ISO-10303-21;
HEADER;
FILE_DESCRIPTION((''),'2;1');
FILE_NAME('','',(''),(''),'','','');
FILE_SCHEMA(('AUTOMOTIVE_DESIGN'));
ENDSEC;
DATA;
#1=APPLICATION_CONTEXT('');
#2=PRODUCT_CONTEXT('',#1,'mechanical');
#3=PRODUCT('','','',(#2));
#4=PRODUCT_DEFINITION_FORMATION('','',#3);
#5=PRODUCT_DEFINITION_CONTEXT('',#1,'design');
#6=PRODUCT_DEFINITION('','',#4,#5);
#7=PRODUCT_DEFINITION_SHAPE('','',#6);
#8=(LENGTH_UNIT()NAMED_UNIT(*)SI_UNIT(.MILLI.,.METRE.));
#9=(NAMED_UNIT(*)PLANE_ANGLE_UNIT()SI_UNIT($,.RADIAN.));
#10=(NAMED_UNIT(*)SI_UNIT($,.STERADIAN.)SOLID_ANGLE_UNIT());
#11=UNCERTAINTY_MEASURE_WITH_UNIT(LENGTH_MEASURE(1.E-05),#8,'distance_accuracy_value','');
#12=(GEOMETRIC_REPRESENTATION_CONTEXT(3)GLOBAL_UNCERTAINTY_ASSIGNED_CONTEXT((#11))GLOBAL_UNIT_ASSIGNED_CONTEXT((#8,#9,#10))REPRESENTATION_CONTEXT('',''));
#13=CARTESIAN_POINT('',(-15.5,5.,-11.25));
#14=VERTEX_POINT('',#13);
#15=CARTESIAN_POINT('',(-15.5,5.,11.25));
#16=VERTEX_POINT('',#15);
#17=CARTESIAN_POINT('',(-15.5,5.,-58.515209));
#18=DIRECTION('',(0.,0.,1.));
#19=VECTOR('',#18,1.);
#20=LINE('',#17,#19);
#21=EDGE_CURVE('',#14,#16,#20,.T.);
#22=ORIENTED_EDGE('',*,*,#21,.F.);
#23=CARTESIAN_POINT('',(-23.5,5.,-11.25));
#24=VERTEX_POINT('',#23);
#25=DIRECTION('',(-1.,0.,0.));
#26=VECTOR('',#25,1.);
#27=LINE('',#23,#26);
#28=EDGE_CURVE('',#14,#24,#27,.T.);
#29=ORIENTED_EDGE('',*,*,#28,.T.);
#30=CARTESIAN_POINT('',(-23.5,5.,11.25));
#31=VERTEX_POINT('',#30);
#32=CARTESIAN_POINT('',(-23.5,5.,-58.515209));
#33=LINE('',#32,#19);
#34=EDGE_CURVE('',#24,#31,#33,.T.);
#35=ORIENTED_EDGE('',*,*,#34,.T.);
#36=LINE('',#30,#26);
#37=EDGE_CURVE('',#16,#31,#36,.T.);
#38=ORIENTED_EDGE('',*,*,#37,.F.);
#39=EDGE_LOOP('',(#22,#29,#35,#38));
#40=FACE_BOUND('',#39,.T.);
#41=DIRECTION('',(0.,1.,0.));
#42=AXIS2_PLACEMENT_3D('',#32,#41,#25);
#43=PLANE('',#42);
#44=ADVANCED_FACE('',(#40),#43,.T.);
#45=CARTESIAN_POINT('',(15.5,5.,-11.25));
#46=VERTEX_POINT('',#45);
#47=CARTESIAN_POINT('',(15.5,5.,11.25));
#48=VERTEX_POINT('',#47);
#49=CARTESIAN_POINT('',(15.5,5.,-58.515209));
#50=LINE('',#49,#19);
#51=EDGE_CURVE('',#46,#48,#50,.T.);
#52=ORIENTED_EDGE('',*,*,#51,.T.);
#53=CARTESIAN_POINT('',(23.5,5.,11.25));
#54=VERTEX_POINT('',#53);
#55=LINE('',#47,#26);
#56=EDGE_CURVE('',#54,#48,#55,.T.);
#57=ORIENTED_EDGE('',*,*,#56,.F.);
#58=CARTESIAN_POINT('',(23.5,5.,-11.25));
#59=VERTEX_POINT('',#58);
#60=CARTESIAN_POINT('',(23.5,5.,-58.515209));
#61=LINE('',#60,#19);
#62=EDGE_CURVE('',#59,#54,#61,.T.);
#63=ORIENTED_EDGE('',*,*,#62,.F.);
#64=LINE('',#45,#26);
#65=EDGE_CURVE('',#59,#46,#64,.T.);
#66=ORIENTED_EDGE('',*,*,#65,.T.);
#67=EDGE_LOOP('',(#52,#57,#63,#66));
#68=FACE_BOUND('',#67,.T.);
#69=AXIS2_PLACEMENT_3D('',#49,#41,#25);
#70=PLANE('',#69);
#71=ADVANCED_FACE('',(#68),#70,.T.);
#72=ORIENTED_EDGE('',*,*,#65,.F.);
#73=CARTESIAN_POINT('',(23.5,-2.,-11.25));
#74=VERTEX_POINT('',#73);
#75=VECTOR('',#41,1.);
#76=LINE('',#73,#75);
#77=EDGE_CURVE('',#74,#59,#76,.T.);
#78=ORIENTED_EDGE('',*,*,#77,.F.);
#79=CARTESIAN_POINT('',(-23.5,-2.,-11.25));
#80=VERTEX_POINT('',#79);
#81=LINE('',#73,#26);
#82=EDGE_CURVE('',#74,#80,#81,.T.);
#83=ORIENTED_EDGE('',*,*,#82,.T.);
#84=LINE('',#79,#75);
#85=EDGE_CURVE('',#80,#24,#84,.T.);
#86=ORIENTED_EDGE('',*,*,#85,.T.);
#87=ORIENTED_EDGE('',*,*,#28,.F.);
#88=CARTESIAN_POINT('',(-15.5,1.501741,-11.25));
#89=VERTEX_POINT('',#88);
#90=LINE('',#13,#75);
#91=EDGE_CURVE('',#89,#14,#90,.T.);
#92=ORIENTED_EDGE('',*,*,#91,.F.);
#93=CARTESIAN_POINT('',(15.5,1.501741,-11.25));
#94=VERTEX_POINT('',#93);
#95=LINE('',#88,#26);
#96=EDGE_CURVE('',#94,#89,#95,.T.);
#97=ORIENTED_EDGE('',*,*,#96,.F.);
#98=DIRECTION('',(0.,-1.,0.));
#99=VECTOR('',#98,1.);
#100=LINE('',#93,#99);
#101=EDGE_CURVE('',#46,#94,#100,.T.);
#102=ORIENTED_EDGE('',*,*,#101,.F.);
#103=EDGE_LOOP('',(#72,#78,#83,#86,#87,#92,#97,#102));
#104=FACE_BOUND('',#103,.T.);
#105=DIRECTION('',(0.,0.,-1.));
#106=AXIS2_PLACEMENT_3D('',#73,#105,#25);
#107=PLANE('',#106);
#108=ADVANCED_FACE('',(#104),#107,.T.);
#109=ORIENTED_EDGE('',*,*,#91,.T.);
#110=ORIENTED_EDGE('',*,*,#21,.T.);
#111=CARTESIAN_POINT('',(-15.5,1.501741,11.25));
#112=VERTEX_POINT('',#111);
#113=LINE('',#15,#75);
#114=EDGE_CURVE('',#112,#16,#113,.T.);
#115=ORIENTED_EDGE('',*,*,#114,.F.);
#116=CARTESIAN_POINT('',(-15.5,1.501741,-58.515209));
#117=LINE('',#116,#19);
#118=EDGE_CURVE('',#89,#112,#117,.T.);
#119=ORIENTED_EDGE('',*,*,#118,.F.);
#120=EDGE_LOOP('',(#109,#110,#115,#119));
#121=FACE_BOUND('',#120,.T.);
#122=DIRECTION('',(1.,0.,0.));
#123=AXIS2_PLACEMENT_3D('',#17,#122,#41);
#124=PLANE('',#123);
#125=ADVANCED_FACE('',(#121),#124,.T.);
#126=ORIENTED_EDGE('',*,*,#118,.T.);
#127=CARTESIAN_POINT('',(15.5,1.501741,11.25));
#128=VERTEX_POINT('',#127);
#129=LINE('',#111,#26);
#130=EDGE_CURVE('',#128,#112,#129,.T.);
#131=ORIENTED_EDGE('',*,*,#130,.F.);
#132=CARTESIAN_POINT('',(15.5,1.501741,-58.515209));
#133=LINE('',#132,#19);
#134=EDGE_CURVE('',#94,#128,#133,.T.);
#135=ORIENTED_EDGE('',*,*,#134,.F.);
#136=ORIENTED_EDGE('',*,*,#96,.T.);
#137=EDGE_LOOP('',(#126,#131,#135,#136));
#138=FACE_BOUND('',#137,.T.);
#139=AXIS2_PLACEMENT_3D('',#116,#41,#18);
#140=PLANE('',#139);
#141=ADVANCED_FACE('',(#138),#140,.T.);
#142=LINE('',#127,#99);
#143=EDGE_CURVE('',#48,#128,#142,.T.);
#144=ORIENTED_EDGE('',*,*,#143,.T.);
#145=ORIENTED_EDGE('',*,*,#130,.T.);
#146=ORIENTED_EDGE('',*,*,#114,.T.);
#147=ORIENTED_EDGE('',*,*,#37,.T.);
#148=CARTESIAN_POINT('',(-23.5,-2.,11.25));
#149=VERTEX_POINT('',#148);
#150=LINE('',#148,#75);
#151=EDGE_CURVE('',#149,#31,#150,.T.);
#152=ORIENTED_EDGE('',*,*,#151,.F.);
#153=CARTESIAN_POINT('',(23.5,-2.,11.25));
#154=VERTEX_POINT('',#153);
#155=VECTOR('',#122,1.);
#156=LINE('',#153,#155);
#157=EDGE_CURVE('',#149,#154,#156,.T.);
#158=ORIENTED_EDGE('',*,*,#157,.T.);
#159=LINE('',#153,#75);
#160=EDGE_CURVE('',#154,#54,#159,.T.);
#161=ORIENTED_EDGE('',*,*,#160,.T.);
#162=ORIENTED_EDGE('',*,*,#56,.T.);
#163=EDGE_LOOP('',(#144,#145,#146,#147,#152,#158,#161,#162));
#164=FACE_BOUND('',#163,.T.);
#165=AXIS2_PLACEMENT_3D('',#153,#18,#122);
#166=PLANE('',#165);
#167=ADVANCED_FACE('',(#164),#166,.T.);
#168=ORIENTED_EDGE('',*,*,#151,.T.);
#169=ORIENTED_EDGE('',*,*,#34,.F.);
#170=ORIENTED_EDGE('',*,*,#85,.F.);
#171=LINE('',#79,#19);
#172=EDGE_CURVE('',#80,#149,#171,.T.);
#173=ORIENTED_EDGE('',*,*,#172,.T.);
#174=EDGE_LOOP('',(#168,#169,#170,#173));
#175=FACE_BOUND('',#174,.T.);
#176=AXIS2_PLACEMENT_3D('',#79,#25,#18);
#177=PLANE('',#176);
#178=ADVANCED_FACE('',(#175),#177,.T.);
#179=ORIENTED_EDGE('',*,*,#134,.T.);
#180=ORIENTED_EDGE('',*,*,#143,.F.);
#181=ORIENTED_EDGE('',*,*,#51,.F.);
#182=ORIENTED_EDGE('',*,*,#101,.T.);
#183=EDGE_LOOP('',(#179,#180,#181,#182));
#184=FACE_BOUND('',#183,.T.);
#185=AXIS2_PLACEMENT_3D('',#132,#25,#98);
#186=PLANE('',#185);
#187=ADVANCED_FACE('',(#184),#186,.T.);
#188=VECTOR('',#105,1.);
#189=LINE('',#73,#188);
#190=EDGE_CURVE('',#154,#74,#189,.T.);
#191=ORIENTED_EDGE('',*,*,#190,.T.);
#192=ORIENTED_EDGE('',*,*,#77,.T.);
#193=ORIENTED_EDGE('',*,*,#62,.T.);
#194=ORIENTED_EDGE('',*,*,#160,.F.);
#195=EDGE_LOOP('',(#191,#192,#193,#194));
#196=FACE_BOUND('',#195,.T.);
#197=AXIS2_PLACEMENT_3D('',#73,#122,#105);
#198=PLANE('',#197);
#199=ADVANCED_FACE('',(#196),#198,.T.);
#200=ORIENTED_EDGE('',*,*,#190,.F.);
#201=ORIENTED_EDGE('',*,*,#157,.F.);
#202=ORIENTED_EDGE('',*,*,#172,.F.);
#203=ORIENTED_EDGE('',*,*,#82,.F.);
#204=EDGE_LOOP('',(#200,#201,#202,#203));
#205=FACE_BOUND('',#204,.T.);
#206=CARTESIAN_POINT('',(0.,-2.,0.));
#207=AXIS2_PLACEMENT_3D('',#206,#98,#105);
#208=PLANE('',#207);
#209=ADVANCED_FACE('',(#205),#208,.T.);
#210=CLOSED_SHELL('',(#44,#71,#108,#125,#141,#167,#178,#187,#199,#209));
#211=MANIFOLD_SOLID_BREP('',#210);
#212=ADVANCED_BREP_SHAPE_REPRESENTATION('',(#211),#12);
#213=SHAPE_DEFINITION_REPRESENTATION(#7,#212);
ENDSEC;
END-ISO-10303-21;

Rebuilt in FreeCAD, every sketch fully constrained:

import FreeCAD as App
import Part
import Sketcher

V = App.Vector


def add_polygon(sketch, points):
    """Adds a closed chain of lines whose ends are joined by coincident constraints."""
    first, n = sketch.GeometryCount, len(points)
    for a, b in zip(points, points[1:] + points[:1]):
        sketch.addGeometry(Part.LineSegment(App.Vector(*a, 0), App.Vector(*b, 0)), False)
    for i in range(n):
        sketch.addConstraint(Sketcher.Constraint("Coincident", first + i, 2, first + (i + 1) % n, 1))

doc = App.newDocument("Part")
params = doc.addObject("Spreadsheet::Sheet", "Params")
for row, (alias, value) in enumerate([
    ("sketch1_width", "47 mm"),
    ("sketch1_height", "22.5 mm"),
    ("pad1_length", "2 mm"),
    ("sketch2_width", "47 mm"),
    ("sketch2_width2", "8 mm"),
    ("sketch2_height", "5 mm"),
    ("pad2_length", "22.5 mm"),
], start=1):
    params.set(f"A{row}", alias)
    params.set(f"B{row}", "=" + value)
    params.setAlias(f"B{row}", alias)

body = doc.addObject("PartDesign::Body", "Body")

# Sketch on XZ plane
sketch1 = body.newObject("Sketcher::SketchObject", "Sketch")
sketch1.AttachmentSupport = (doc.getObject("XZ_Plane"), [""])
sketch1.MapMode = "FlatFace"
add_polygon(sketch1, [(-24, -11), (-24, 11), (24, 11), (24, -11)])  # lines 0-3
sketch1.addConstraint([
    Sketcher.Constraint("Vertical", 0),
    Sketcher.Constraint("Horizontal", 1),
    Sketcher.Constraint("Vertical", 2),
    Sketcher.Constraint("Horizontal", 3),
    Sketcher.Constraint("Symmetric", 0, 2, 2, 2, -1, 1),
    Sketcher.Constraint("DistanceX", 1, 1, 1, 2, 47.0),
    Sketcher.Constraint("DistanceY", 0, 1, 0, 2, 22.5),
])
sketch1.setExpression("Constraints[9]", "Params.sketch1_width")
sketch1.setExpression("Constraints[10]", "Params.sketch1_height")
pad1 = body.newObject("PartDesign::Pad", "Pad")
pad1.Profile = sketch1
pad1.setExpression("Length", "Params.pad1_length")

# Sketch on XY plane
sketch2 = body.newObject("Sketcher::SketchObject", "Sketch001")
sketch2.AttachmentSupport = (doc.getObject("XY_Plane"), [""])
sketch2.MapMode = "FlatFace"
sketch2.AttachmentOffset = App.Placement(V(0, 0, 11.25), App.Rotation())
add_polygon(sketch2, [(-23.5, 0), (23.5, 0), (23.5, 5), (15.5, 5), (15.5, 1.5), (-15.5, 1.5), (-15.5, 5), (-23.5, 5)])  # lines 0-7
sketch2.addConstraint([
    Sketcher.Constraint("Horizontal", 0),
    Sketcher.Constraint("Vertical", 1),
    Sketcher.Constraint("Horizontal", 2),
    Sketcher.Constraint("Vertical", 3),
    Sketcher.Constraint("Horizontal", 4),
    Sketcher.Constraint("Vertical", 5),
    Sketcher.Constraint("Horizontal", 6),
    Sketcher.Constraint("Vertical", 7),
    Sketcher.Constraint("Symmetric", 0, 2, 7, 2, -1, 1),
    Sketcher.Constraint("Symmetric", 2, 2, 5, 2, -2),
    Sketcher.Constraint("DistanceX", 0, 1, 0, 2, 47.0),
    Sketcher.Constraint("DistanceX", 2, 2, 2, 1, 8.0),
    Sketcher.Constraint("DistanceY", 1, 1, 1, 2, 5.0),
    Sketcher.Constraint("DistanceY", 3, 2, 3, 1, 3.498259),
])
sketch2.setExpression("Constraints[18]", "Params.sketch2_width")
sketch2.setExpression("Constraints[19]", "Params.sketch2_width2")
sketch2.setExpression("Constraints[20]", "Params.sketch2_height")
pad2 = body.newObject("PartDesign::Pad", "Pad001")
pad2.Profile = sketch2
pad2.setExpression("Length", "Params.pad2_length")
pad2.Reversed = True

doc.recompute()
